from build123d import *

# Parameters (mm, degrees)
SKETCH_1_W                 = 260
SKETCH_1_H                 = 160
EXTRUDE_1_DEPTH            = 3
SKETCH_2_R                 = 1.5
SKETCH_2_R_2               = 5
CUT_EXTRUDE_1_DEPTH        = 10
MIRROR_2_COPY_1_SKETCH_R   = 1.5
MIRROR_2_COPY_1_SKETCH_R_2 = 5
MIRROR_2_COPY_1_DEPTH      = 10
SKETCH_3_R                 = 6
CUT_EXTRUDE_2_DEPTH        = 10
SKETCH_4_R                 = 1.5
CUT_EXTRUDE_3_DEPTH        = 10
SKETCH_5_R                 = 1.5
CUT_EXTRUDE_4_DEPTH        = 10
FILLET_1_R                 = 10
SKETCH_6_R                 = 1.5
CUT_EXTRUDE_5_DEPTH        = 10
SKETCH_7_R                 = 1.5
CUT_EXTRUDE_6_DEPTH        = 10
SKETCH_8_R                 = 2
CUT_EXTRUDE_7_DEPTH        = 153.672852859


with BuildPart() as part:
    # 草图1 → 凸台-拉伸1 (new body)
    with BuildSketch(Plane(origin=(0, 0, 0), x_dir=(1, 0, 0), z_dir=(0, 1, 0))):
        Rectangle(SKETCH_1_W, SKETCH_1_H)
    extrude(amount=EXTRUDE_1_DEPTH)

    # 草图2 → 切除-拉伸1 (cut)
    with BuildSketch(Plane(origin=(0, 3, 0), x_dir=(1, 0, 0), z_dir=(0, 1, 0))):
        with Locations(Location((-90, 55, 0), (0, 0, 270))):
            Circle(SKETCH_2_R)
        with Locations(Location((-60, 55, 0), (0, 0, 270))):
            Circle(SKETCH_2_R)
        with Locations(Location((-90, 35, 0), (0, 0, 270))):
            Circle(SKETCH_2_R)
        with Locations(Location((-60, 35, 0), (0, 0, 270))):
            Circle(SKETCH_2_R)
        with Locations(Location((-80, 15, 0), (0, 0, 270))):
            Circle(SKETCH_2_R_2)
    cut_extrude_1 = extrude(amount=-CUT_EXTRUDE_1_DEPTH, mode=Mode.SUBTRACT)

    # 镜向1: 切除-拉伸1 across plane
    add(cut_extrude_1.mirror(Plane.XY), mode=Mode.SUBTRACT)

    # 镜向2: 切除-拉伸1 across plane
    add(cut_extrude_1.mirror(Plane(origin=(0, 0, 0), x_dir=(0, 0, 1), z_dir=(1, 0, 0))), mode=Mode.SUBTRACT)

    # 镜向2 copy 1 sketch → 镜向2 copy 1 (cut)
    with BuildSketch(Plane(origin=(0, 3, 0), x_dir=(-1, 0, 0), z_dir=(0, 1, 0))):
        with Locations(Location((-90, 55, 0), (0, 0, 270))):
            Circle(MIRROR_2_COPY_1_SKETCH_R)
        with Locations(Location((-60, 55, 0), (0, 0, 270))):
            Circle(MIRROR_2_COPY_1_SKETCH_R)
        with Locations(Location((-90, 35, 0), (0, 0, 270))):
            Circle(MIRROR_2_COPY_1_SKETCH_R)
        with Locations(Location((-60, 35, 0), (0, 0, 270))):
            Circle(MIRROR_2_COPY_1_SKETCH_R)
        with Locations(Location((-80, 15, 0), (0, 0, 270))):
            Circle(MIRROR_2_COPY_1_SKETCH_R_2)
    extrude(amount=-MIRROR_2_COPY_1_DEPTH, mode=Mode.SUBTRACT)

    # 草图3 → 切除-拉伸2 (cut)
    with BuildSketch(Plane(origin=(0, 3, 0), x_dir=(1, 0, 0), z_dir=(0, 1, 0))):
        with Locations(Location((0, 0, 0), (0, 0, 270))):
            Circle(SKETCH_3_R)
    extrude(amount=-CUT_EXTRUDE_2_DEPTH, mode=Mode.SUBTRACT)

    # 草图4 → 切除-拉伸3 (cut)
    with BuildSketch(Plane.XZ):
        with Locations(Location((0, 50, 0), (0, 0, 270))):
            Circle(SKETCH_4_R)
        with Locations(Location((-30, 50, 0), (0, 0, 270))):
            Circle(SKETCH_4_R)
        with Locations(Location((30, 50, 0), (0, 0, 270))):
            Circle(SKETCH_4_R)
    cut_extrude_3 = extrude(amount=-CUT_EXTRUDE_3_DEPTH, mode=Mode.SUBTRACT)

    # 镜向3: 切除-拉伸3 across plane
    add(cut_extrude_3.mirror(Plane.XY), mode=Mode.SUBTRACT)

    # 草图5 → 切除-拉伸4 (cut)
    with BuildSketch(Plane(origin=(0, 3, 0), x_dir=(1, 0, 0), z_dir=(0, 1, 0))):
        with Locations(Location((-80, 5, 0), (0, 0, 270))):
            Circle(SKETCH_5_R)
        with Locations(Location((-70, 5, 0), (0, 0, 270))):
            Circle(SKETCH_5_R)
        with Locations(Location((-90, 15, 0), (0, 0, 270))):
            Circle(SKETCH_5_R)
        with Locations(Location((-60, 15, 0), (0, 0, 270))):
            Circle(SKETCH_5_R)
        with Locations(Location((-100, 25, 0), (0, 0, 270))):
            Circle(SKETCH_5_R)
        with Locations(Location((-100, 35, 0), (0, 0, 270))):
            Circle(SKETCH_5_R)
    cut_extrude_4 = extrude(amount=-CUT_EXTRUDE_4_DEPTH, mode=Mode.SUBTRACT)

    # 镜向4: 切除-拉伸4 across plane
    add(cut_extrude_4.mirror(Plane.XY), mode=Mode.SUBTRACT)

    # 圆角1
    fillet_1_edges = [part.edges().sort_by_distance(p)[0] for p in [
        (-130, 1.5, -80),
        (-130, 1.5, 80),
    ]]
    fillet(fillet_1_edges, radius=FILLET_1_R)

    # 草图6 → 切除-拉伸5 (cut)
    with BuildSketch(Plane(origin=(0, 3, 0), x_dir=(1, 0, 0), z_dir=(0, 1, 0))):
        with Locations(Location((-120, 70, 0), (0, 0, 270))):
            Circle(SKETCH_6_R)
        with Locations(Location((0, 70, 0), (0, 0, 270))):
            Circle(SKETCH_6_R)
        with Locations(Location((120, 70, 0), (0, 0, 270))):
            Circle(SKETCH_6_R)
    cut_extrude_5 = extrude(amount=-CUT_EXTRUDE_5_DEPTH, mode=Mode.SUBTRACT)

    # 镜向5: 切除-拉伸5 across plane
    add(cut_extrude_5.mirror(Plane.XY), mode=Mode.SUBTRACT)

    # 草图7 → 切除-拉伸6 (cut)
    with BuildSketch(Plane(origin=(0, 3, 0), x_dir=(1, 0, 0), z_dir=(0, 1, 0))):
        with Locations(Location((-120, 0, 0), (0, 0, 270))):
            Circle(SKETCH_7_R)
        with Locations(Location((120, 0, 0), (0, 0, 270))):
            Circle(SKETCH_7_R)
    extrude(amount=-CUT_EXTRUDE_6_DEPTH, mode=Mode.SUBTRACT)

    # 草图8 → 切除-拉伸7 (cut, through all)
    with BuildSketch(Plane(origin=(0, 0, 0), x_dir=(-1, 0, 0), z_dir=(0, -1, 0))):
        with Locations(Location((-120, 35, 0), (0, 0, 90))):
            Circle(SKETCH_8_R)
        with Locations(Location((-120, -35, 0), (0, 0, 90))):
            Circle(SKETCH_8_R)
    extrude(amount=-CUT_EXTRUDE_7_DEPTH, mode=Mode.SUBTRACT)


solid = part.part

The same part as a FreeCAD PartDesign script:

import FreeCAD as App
import Part
import Sketcher

V = App.Vector


def edges_at(feature, points):
    """Names of the edges that pass closest to the given points."""
    edges = feature.Shape.Edges
    near = lambda p: min(range(len(edges)), key=lambda i: edges[i].distToShape(Part.Vertex(*p))[0])
    return sorted({f"Edge{near(p) + 1}" for p in points})


def add_polygon(sketch, points):
    """Adds a closed chain of lines whose ends are joined by coincident constraints."""
    first, n = sketch.GeometryCount, len(points)
    for a, b in zip(points, points[1:] + points[:1]):
        sketch.addGeometry(Part.LineSegment(App.Vector(*a, 0), App.Vector(*b, 0)), False)
    for i in range(n):
        sketch.addConstraint(Sketcher.Constraint("Coincident", first + i, 2, first + (i + 1) % n, 1))

doc = App.newDocument("Part")
body = doc.addObject("PartDesign::Body", "Body")

# Sketch on XZ plane
sketch1 = body.newObject("Sketcher::SketchObject", "Sketch")
sketch1.AttachmentSupport = (doc.getObject("XZ_Plane"), [""])
sketch1.MapMode = "FlatFace"
add_polygon(sketch1, [(-130, -80), (-130, 80), (130, 80), (130, -80)])  # lines 0-3
sketch1.addConstraint([
    Sketcher.Constraint("Vertical", 0),
    Sketcher.Constraint("Horizontal", 1),
    Sketcher.Constraint("Vertical", 2),
    Sketcher.Constraint("Horizontal", 3),
    Sketcher.Constraint("Symmetric", 0, 2, 2, 2, -1, 1),
    Sketcher.Constraint("DistanceX", 1, 1, 1, 2, 260.0),
    Sketcher.Constraint("DistanceY", 0, 1, 0, 2, 160.0),
])
pad1 = body.newObject("PartDesign::Pad", "Pad")
pad1.Profile = sketch1
pad1.Length = 3
pad1.Reversed = True

# Sketch on XZ plane
sketch2 = body.newObject("Sketcher::SketchObject", "Sketch001")
sketch2.AttachmentSupport = (doc.getObject("XZ_Plane"), [""])
sketch2.MapMode = "FlatFace"
sketch2.AttachmentOffset = App.Placement(V(0, 0, -3), App.Rotation())
sketch2.addGeometry([
    Part.Circle(V(-90, -55, 0), V(0, 0, 1), 1.5),  # 0
    Part.Circle(V(-60, -55, 0), V(0, 0, 1), 1.5),  # 1
    Part.Circle(V(-90, -35, 0), V(0, 0, 1), 1.5),  # 2
    Part.Circle(V(-60, -35, 0), V(0, 0, 1), 1.5),  # 3
    Part.Circle(V(-80, -15, 0), V(0, 0, 1), 5),  # 4
], False)
sketch2.addConstraint([
    Sketcher.Constraint("Equal", 0, 1),
    Sketcher.Constraint("Equal", 1, 2),
    Sketcher.Constraint("Equal", 2, 3),
    Sketcher.Constraint("Horizontal", 0, 3, 1, 3),
    Sketcher.Constraint("Horizontal", 2, 3, 3, 3),
    Sketcher.Constraint("Vertical", 0, 3, 2, 3),
    Sketcher.Constraint("Vertical", 1, 3, 3, 3),
    Sketcher.Constraint("Diameter", 0, 3.0),
    Sketcher.Constraint("Diameter", 4, 10.0),
    Sketcher.Constraint("DistanceX", 0, 3, -1, 1, 90.0),
    Sketcher.Constraint("DistanceY", 0, 3, -1, 1, 55.0),
    Sketcher.Constraint("DistanceX", 1, 3, -1, 1, 60.0),
    Sketcher.Constraint("DistanceY", 2, 3, -1, 1, 35.0),
    Sketcher.Constraint("DistanceX", 4, 3, -1, 1, 80.0),
    Sketcher.Constraint("DistanceY", 4, 3, -1, 1, 15.0),
])
pocket1 = body.newObject("PartDesign::Pocket", "Pocket")
pocket1.Profile = sketch2
pocket1.Length = 10
pocket1.Reversed = True
doc.recompute()

mirrored = body.newObject("PartDesign::Mirrored", "Mirrored")
mirrored.Originals = [pocket1]
mirrored.MirrorPlane = (doc.getObject("XY_Plane"), [""])
body.Tip = mirrored
doc.recompute()

mirrored2 = body.newObject("PartDesign::Mirrored", "Mirrored001")
mirrored2.Originals = [pocket1]
mirrored2.MirrorPlane = (doc.getObject("YZ_Plane"), [""])
body.Tip = mirrored2

# Sketch on XZ plane
sketch3 = body.newObject("Sketcher::SketchObject", "Sketch002")
sketch3.AttachmentSupport = (doc.getObject("XZ_Plane"), [""])
sketch3.MapMode = "FlatFace"
sketch3.AttachmentOffset = App.Placement(V(0, 0, -3), App.Rotation())
sketch3.addGeometry([
    Part.Circle(V(90, 55, 0), V(0, 0, 1), 1.5),  # 0
    Part.Circle(V(60, 55, 0), V(0, 0, 1), 1.5),  # 1
    Part.Circle(V(90, 35, 0), V(0, 0, 1), 1.5),  # 2
    Part.Circle(V(60, 35, 0), V(0, 0, 1), 1.5),  # 3
    Part.Circle(V(80, 15, 0), V(0, 0, 1), 5),  # 4
], False)
sketch3.addConstraint([
    Sketcher.Constraint("Equal", 0, 1),
    Sketcher.Constraint("Equal", 1, 2),
    Sketcher.Constraint("Equal", 2, 3),
    Sketcher.Constraint("Horizontal", 0, 3, 1, 3),
    Sketcher.Constraint("Horizontal", 2, 3, 3, 3),
    Sketcher.Constraint("Vertical", 0, 3, 2, 3),
    Sketcher.Constraint("Vertical", 1, 3, 3, 3),
    Sketcher.Constraint("Diameter", 0, 3.0),
    Sketcher.Constraint("Diameter", 4, 10.0),
    Sketcher.Constraint("DistanceX", -1, 1, 0, 3, 90.0),
    Sketcher.Constraint("DistanceY", -1, 1, 0, 3, 55.0),
    Sketcher.Constraint("DistanceX", -1, 1, 1, 3, 60.0),
    Sketcher.Constraint("DistanceY", -1, 1, 2, 3, 35.0),
    Sketcher.Constraint("DistanceX", -1, 1, 4, 3, 80.0),
    Sketcher.Constraint("DistanceY", -1, 1, 4, 3, 15.0),
])
pocket2 = body.newObject("PartDesign::Pocket", "Pocket001")
pocket2.Profile = sketch3
pocket2.Length = 10
pocket2.Reversed = True

# Sketch on XZ plane
sketch4 = body.newObject("Sketcher::SketchObject", "Sketch003")
sketch4.AttachmentSupport = (doc.getObject("XZ_Plane"), [""])
sketch4.MapMode = "FlatFace"
sketch4.AttachmentOffset = App.Placement(V(0, 0, -3), App.Rotation())
sketch4.addGeometry(Part.Circle(V(0, 0, 0), V(0, 0, 1), 6), False)
sketch4.addConstraint([
    Sketcher.Constraint("Coincident", 0, 3, -1, 1),
    Sketcher.Constraint("Diameter", 0, 12.0),
])
pocket3 = body.newObject("PartDesign::Pocket", "Pocket002")
pocket3.Profile = sketch4
pocket3.Length = 10
pocket3.Reversed = True

# Sketch on XZ plane
sketch5 = body.newObject("Sketcher::SketchObject", "Sketch004")
sketch5.AttachmentSupport = (doc.getObject("XZ_Plane"), [""])
sketch5.MapMode = "FlatFace"
sketch5.addGeometry([
    Part.Circle(V(0, 50, 0), V(0, 0, 1), 1.5),
    Part.Circle(V(-30, 50, 0), V(0, 0, 1), 1.5),
    Part.Circle(V(30, 50, 0), V(0, 0, 1), 1.5),
], False)
sketch5.addConstraint([
    Sketcher.Constraint("Equal", 0, 1),
    Sketcher.Constraint("Equal", 1, 2),
    Sketcher.Constraint("Symmetric", 1, 3, 2, 3, -2),
    Sketcher.Constraint("PointOnObject", 0, 3, -2),
    Sketcher.Constraint("Horizontal", 0, 3, 1, 3),
    Sketcher.Constraint("Diameter", 0, 3.0),
    Sketcher.Constraint("DistanceY", -1, 1, 0, 3, 50.0),
    Sketcher.Constraint("DistanceX", 1, 3, -1, 1, 30.0),
])
pocket4 = body.newObject("PartDesign::Pocket", "Pocket003")
pocket4.Profile = sketch5
pocket4.Length = 10
doc.recompute()

mirrored3 = body.newObject("PartDesign::Mirrored", "Mirrored002")
mirrored3.Originals = [pocket4]
mirrored3.MirrorPlane = (doc.getObject("XY_Plane"), [""])
body.Tip = mirrored3

# Sketch on XZ plane
sketch6 = body.newObject("Sketcher::SketchObject", "Sketch005")
sketch6.AttachmentSupport = (doc.getObject("XZ_Plane"), [""])
sketch6.MapMode = "FlatFace"
sketch6.AttachmentOffset = App.Placement(V(0, 0, -3), App.Rotation())
sketch6.addGeometry([
    Part.Circle(V(-80, -5, 0), V(0, 0, 1), 1.5),  # 0
    Part.Circle(V(-70, -5, 0), V(0, 0, 1), 1.5),  # 1
    Part.Circle(V(-90, -15, 0), V(0, 0, 1), 1.5),  # 2
    Part.Circle(V(-60, -15, 0), V(0, 0, 1), 1.5),  # 3
    Part.Circle(V(-100, -25, 0), V(0, 0, 1), 1.5),  # 4
    Part.Circle(V(-100, -35, 0), V(0, 0, 1), 1.5),  # 5
], False)
sketch6.addConstraint([
    Sketcher.Constraint("Equal", 0, 1),
    Sketcher.Constraint("Equal", 1, 2),
    Sketcher.Constraint("Equal", 2, 3),
    Sketcher.Constraint("Equal", 3, 4),
    Sketcher.Constraint("Equal", 4, 5),
    Sketcher.Constraint("Horizontal", 0, 3, 1, 3),
    Sketcher.Constraint("Horizontal", 2, 3, 3, 3),
    Sketcher.Constraint("Vertical", 4, 3, 5, 3),
    Sketcher.Constraint("Diameter", 0, 3.0),
    Sketcher.Constraint("DistanceX", 0, 3, -1, 1, 80.0),
    Sketcher.Constraint("DistanceY", 0, 3, -1, 1, 5.0),
    Sketcher.Constraint("DistanceX", 1, 3, -1, 1, 70.0),
    Sketcher.Constraint("DistanceX", 2, 3, -1, 1, 90.0),
    Sketcher.Constraint("DistanceY", 2, 3, -1, 1, 15.0),
    Sketcher.Constraint("DistanceX", 3, 3, -1, 1, 60.0),
    Sketcher.Constraint("DistanceX", 4, 3, -1, 1, 100.0),
    Sketcher.Constraint("DistanceY", 4, 3, -1, 1, 25.0),
    Sketcher.Constraint("DistanceY", 5, 3, -1, 1, 35.0),
])
pocket5 = body.newObject("PartDesign::Pocket", "Pocket004")
pocket5.Profile = sketch6
pocket5.Length = 10
pocket5.Reversed = True
doc.recompute()

mirrored4 = body.newObject("PartDesign::Mirrored", "Mirrored003")
mirrored4.Originals = [pocket5]
mirrored4.MirrorPlane = (doc.getObject("XY_Plane"), [""])
body.Tip = mirrored4
doc.recompute()

fillet = body.newObject("PartDesign::Fillet", "Fillet")
fillet.Base = (mirrored4, edges_at(mirrored4, [(-130, 1.5, -80), (-130, 1.5, 80)]))
fillet.Radius = 10

# Sketch on XZ plane
sketch7 = body.newObject("Sketcher::SketchObject", "Sketch006")
sketch7.AttachmentSupport = (doc.getObject("XZ_Plane"), [""])
sketch7.MapMode = "FlatFace"
sketch7.AttachmentOffset = App.Placement(V(0, 0, -3), App.Rotation())
sketch7.addGeometry([
    Part.Circle(V(-120, -70, 0), V(0, 0, 1), 1.5),
    Part.Circle(V(0, -70, 0), V(0, 0, 1), 1.5),
    Part.Circle(V(120, -70, 0), V(0, 0, 1), 1.5),
], False)
sketch7.addConstraint([
    Sketcher.Constraint("Equal", 0, 1),
    Sketcher.Constraint("Equal", 1, 2),
    Sketcher.Constraint("Symmetric", 0, 3, 2, 3, -2),
    Sketcher.Constraint("PointOnObject", 1, 3, -2),
    Sketcher.Constraint("Horizontal", 0, 3, 1, 3),
    Sketcher.Constraint("Diameter", 0, 3.0),
    Sketcher.Constraint("DistanceX", 0, 3, -1, 1, 120.0),
    Sketcher.Constraint("DistanceY", 0, 3, -1, 1, 70.0),
])
pocket6 = body.newObject("PartDesign::Pocket", "Pocket005")
pocket6.Profile = sketch7
pocket6.Length = 10
pocket6.Reversed = True
doc.recompute()

mirrored5 = body.newObject("PartDesign::Mirrored", "Mirrored004")
mirrored5.Originals = [pocket6]
mirrored5.MirrorPlane = (doc.getObject("XY_Plane"), [""])
body.Tip = mirrored5

# Sketch on XZ plane
sketch8 = body.newObject("Sketcher::SketchObject", "Sketch007")
sketch8.AttachmentSupport = (doc.getObject("XZ_Plane"), [""])
sketch8.MapMode = "FlatFace"
sketch8.AttachmentOffset = App.Placement(V(0, 0, -3), App.Rotation())
sketch8.addGeometry([
    Part.Circle(V(-120, 0, 0), V(0, 0, 1), 1.5),
    Part.Circle(V(120, 0, 0), V(0, 0, 1), 1.5),
], False)
sketch8.addConstraint([
    Sketcher.Constraint("Equal", 0, 1),
    Sketcher.Constraint("Symmetric", 0, 3, 1, 3, -1, 1),
    Sketcher.Constraint("PointOnObject", 0, 3, -1),
    Sketcher.Constraint("Diameter", 0, 3.0),
    Sketcher.Constraint("DistanceX", 0, 3, -1, 1, 120.0),
])
pocket7 = body.newObject("PartDesign::Pocket", "Pocket006")
pocket7.Profile = sketch8
pocket7.Length = 10
pocket7.Reversed = True

# Sketch on XZ plane
sketch9 = body.newObject("Sketcher::SketchObject", "Sketch008")
sketch9.AttachmentSupport = (doc.getObject("XZ_Plane"), [""])
sketch9.MapMode = "FlatFace"
sketch9.addGeometry([
    Part.Circle(V(120, -35, 0), V(0, 0, 1), 2),
    Part.Circle(V(120, 35, 0), V(0, 0, 1), 2),
], False)
sketch9.addConstraint([
    Sketcher.Constraint("Equal", 0, 1),
    Sketcher.Constraint("Symmetric", 0, 3, 1, 3, -1),
    Sketcher.Constraint("Diameter", 0, 4.0),
    Sketcher.Constraint("DistanceX", -1, 1, 0, 3, 120.0),
    Sketcher.Constraint("DistanceY", 0, 3, -1, 1, 35.0),
])
pocket8 = body.newObject("PartDesign::Pocket", "Pocket007")
pocket8.Profile = sketch9
pocket8.Type = "ThroughAll"

doc.recompute()
